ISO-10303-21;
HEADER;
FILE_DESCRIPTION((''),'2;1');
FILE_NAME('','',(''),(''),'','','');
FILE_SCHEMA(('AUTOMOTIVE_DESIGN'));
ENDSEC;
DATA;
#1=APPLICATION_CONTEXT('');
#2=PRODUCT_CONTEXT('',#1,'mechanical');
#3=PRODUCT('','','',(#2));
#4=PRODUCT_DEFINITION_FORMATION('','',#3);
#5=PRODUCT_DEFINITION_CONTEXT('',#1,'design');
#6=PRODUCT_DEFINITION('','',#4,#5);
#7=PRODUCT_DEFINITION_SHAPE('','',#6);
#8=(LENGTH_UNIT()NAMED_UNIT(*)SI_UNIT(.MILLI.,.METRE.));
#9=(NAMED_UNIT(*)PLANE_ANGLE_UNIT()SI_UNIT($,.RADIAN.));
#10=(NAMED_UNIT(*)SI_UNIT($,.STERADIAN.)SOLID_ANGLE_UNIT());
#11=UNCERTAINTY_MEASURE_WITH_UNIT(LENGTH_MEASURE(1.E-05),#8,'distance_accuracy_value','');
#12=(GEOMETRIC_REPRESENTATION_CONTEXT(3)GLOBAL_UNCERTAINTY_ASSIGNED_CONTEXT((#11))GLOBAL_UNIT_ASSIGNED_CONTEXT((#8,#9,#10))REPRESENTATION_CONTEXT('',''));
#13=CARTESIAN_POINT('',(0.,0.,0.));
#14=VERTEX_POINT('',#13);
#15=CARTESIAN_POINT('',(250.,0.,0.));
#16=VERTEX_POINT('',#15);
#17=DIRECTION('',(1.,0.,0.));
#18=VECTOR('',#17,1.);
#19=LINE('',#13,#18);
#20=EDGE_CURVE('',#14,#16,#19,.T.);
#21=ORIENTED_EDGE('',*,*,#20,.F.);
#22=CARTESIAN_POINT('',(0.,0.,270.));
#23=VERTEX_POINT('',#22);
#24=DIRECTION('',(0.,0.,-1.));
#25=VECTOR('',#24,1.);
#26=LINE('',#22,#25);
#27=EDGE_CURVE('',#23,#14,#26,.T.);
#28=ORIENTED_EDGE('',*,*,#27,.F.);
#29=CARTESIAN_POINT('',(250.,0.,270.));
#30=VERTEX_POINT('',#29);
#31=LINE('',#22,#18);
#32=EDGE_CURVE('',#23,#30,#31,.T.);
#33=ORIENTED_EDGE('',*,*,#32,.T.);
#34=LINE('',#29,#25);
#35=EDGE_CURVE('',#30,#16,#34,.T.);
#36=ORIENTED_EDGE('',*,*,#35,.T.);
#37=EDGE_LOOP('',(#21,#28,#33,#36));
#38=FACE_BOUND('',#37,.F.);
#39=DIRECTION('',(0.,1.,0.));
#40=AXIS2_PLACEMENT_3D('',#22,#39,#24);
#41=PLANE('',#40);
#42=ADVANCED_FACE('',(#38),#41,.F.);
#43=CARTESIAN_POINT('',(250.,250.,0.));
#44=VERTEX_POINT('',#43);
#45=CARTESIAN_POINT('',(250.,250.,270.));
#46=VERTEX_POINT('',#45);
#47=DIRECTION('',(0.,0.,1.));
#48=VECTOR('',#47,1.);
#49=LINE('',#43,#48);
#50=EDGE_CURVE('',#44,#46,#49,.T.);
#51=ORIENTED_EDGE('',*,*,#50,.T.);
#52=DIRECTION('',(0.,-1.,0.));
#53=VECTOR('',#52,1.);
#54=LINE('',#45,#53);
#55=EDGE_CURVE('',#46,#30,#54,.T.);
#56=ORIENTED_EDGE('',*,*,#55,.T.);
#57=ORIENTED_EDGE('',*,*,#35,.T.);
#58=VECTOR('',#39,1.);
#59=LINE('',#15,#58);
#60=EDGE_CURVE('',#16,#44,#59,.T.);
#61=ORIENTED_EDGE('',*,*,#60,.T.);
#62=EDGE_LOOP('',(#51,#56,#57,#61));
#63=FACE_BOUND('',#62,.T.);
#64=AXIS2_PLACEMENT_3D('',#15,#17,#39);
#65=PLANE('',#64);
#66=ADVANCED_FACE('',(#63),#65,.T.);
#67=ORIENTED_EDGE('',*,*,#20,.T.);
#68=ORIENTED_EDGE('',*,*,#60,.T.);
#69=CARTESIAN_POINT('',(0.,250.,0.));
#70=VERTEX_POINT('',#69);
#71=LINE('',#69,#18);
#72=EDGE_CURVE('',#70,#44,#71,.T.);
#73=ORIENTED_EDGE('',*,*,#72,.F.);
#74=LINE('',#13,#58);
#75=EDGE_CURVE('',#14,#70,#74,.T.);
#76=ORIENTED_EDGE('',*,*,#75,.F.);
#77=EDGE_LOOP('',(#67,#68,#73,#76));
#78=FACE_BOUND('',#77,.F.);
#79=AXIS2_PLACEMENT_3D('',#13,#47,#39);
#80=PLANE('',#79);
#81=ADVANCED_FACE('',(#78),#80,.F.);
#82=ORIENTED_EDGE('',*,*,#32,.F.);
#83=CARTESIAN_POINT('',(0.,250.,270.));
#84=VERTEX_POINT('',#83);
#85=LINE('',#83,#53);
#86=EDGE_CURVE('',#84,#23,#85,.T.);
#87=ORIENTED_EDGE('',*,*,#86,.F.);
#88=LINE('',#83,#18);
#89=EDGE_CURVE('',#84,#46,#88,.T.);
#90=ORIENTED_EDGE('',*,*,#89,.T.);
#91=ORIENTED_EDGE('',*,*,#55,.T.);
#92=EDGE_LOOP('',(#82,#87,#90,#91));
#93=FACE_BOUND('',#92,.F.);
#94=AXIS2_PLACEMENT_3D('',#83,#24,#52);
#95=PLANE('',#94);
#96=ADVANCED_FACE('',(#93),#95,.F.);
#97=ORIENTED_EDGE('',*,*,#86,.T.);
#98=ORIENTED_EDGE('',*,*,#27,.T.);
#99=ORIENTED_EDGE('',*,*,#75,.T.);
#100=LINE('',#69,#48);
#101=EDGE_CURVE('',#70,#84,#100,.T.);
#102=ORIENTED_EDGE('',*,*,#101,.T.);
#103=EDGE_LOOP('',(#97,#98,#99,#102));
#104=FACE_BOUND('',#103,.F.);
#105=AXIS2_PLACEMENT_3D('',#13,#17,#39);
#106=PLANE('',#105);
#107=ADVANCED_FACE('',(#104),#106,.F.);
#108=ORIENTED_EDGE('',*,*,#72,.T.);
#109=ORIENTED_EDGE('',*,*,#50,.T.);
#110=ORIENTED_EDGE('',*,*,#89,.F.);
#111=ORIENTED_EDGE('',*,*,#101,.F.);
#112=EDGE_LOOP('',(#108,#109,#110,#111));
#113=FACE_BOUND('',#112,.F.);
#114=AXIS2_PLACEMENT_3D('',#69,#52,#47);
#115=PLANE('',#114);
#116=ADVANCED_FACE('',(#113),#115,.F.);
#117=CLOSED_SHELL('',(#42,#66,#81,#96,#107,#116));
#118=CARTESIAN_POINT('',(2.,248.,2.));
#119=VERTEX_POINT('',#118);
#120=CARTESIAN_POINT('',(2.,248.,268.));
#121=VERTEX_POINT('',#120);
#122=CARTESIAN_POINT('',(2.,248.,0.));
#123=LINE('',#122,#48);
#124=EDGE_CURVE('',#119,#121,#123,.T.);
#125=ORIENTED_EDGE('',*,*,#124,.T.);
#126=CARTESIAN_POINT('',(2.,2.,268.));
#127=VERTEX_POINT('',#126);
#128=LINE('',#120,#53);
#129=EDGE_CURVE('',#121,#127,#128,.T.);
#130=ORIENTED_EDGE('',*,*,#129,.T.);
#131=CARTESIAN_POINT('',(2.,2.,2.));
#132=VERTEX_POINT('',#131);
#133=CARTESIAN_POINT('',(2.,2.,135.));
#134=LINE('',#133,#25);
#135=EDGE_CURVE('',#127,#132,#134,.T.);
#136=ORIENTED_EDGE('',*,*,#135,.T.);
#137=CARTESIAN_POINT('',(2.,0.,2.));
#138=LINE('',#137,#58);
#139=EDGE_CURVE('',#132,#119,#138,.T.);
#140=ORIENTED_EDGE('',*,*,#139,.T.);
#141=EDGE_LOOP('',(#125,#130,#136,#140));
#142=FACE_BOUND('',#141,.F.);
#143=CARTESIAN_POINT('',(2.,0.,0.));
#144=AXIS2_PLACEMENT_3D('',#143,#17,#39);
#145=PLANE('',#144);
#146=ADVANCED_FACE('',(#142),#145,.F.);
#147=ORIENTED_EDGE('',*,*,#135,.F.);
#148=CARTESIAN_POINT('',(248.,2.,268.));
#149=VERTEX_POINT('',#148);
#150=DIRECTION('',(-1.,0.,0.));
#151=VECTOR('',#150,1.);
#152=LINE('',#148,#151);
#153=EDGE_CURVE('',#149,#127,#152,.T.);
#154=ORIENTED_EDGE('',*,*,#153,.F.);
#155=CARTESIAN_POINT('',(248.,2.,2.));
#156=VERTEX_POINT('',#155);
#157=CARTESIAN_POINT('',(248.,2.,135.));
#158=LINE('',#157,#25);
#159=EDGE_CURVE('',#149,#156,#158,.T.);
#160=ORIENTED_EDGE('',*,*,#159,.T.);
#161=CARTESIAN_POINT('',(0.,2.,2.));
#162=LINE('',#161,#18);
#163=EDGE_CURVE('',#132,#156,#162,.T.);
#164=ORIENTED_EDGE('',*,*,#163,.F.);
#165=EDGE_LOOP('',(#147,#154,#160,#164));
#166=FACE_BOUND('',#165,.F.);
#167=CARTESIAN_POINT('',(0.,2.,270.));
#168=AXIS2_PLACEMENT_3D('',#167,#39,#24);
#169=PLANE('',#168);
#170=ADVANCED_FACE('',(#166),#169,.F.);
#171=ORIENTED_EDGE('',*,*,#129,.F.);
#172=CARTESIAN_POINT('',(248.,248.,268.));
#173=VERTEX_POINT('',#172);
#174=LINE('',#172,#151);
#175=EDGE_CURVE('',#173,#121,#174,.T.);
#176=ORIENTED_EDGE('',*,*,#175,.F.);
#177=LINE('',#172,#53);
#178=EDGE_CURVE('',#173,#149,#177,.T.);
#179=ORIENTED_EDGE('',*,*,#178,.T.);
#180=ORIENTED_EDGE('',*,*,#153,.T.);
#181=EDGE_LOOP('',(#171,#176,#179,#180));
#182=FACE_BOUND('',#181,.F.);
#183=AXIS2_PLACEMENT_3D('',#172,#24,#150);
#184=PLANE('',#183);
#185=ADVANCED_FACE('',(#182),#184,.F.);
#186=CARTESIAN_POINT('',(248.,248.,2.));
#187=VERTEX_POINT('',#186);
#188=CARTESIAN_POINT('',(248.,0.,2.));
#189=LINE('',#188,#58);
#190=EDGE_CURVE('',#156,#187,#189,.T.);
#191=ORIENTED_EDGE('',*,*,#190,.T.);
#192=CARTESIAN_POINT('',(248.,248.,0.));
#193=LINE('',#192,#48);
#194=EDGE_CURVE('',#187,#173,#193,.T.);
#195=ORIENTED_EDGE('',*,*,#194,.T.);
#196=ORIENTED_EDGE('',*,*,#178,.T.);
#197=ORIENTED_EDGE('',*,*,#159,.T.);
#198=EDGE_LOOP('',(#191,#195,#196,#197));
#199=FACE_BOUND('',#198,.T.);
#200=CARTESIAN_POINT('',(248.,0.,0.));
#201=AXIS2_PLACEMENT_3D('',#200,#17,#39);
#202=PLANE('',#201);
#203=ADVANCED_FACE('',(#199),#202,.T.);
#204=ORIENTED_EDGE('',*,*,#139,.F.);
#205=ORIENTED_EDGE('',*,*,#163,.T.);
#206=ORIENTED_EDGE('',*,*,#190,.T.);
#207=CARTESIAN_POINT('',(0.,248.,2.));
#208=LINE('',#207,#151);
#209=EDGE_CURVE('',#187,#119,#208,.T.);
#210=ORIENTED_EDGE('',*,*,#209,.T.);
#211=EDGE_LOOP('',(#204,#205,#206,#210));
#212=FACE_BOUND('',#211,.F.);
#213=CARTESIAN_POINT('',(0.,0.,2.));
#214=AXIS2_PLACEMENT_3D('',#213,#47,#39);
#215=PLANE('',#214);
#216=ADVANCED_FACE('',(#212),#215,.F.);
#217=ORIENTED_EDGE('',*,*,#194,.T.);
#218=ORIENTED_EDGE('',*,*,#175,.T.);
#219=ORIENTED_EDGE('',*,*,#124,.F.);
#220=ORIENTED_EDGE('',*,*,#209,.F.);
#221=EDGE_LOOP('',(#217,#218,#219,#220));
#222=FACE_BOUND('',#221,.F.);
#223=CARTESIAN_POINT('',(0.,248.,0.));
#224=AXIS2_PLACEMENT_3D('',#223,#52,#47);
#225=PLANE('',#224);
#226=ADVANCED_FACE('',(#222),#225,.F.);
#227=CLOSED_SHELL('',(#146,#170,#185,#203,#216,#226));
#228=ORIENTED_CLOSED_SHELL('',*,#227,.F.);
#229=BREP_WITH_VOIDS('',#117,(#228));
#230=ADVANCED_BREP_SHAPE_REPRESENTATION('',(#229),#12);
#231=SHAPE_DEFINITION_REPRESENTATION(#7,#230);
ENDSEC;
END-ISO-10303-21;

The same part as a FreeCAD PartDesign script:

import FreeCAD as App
import Part
import Sketcher
from FreeCAD import Vector


def faces_at(feature, points):
    """Names of the faces that lie closest to the given points."""
    faces = feature.Shape.Faces
    near = lambda p: min(range(len(faces)), key=lambda i: faces[i].distToShape(Part.Vertex(*p))[0])
    return sorted({f"Face{near(p) + 1}" for p in points})


def add_polygon(sketch, points):
    """Adds a closed chain of lines whose ends are joined by coincident constraints."""
    first, n = sketch.GeometryCount, len(points)
    for a, b in zip(points, points[1:] + points[:1]):
        sketch.addGeometry(Part.LineSegment(App.Vector(*a, 0), App.Vector(*b, 0)), False)
    for i in range(n):
        sketch.addConstraint(Sketcher.Constraint("Coincident", first + i, 2, first + (i + 1) % n, 1))

doc = App.newDocument("Part")
params = doc.addObject("Spreadsheet::Sheet", "Params")
for row, (alias, value) in enumerate([
    ("sketch1_width", "250 mm"),
    ("sketch1_height", "270 mm"),
    ("pad1_length", "250 mm"),
    ("thickness_wall", "2 mm"),
    ("sketch2_width", "246 mm"),
    ("sketch2_height", "2 mm"),
    ("pad2_length", "246 mm"),
], start=1):
    params.set(f"A{row}", alias)
    params.set(f"B{row}", "=" + value)
    params.setAlias(f"B{row}", alias)

body = doc.addObject("PartDesign::Body", "Body")

sketch1 = body.newObject("Sketcher::SketchObject", "Sketch")
sketch1.AttachmentSupport = (doc.getObject("YZ_Plane"), [""])
sketch1.MapMode = "FlatFace"
add_polygon(sketch1, [(0, 270), (0, 0), (250, 0), (250, 270)])
sketch1.addConstraint([
    Sketcher.Constraint("Vertical", 0),
    Sketcher.Constraint("Horizontal", 1),
    Sketcher.Constraint("Vertical", 2),
    Sketcher.Constraint("Horizontal", 3),
    Sketcher.Constraint("Coincident", 0, 2, -1, 1),
    Sketcher.Constraint("DistanceX", 1, 1, 1, 2, 250.0),
    Sketcher.Constraint("DistanceY", 0, 2, 0, 1, 270.0),
])
sketch1.setExpression("Constraints[9]", "Params.sketch1_width")
sketch1.setExpression("Constraints[10]", "Params.sketch1_height")
pad1 = body.newObject("PartDesign::Pad", "Pad")
pad1.Profile = sketch1
pad1.setExpression("Length", "Params.pad1_length")
doc.recompute()

thickness = body.newObject("PartDesign::Thickness", "Thickness")
thickness.Base = (pad1, faces_at(pad1, [(166.667, 166.667, 270)]))
thickness.setExpression("Value", "Params.thickness_wall")
thickness.Reversed = True
thickness.Join = "Intersection"

sketch2 = body.newObject("Sketcher::SketchObject", "Sketch001")
sketch2.AttachmentSupport = (doc.getObject("XZ_Plane"), [""])
sketch2.MapMode = "FlatFace"
sketch2.AttachmentOffset = App.Placement(Vector(0, 0, -248), App.Rotation())
add_polygon(sketch2, [(248, 270), (2, 270), (2, 268), (248, 268)])
sketch2.addConstraint([
    Sketcher.Constraint("Horizontal", 0),
    Sketcher.Constraint("Vertical", 1),
    Sketcher.Constraint("Horizontal", 2),
    Sketcher.Constraint("Vertical", 3),
    Sketcher.Constraint("DistanceX", 0, 2, 0, 1, 246.0),
    Sketcher.Constraint("DistanceY", 1, 2, 1, 1, 2.0),
    Sketcher.Constraint("DistanceX", -1, 1, 0, 2, 2.0),
    Sketcher.Constraint("DistanceY", -1, 1, 0, 2, 270.0),
])
sketch2.setExpression("Constraints[8]", "Params.sketch2_width")
sketch2.setExpression("Constraints[9]", "Params.sketch2_height")
pad2 = body.newObject("PartDesign::Pad", "Pad001")
pad2.Profile = sketch2
pad2.setExpression("Length", "Params.pad2_length")

doc.recompute()
